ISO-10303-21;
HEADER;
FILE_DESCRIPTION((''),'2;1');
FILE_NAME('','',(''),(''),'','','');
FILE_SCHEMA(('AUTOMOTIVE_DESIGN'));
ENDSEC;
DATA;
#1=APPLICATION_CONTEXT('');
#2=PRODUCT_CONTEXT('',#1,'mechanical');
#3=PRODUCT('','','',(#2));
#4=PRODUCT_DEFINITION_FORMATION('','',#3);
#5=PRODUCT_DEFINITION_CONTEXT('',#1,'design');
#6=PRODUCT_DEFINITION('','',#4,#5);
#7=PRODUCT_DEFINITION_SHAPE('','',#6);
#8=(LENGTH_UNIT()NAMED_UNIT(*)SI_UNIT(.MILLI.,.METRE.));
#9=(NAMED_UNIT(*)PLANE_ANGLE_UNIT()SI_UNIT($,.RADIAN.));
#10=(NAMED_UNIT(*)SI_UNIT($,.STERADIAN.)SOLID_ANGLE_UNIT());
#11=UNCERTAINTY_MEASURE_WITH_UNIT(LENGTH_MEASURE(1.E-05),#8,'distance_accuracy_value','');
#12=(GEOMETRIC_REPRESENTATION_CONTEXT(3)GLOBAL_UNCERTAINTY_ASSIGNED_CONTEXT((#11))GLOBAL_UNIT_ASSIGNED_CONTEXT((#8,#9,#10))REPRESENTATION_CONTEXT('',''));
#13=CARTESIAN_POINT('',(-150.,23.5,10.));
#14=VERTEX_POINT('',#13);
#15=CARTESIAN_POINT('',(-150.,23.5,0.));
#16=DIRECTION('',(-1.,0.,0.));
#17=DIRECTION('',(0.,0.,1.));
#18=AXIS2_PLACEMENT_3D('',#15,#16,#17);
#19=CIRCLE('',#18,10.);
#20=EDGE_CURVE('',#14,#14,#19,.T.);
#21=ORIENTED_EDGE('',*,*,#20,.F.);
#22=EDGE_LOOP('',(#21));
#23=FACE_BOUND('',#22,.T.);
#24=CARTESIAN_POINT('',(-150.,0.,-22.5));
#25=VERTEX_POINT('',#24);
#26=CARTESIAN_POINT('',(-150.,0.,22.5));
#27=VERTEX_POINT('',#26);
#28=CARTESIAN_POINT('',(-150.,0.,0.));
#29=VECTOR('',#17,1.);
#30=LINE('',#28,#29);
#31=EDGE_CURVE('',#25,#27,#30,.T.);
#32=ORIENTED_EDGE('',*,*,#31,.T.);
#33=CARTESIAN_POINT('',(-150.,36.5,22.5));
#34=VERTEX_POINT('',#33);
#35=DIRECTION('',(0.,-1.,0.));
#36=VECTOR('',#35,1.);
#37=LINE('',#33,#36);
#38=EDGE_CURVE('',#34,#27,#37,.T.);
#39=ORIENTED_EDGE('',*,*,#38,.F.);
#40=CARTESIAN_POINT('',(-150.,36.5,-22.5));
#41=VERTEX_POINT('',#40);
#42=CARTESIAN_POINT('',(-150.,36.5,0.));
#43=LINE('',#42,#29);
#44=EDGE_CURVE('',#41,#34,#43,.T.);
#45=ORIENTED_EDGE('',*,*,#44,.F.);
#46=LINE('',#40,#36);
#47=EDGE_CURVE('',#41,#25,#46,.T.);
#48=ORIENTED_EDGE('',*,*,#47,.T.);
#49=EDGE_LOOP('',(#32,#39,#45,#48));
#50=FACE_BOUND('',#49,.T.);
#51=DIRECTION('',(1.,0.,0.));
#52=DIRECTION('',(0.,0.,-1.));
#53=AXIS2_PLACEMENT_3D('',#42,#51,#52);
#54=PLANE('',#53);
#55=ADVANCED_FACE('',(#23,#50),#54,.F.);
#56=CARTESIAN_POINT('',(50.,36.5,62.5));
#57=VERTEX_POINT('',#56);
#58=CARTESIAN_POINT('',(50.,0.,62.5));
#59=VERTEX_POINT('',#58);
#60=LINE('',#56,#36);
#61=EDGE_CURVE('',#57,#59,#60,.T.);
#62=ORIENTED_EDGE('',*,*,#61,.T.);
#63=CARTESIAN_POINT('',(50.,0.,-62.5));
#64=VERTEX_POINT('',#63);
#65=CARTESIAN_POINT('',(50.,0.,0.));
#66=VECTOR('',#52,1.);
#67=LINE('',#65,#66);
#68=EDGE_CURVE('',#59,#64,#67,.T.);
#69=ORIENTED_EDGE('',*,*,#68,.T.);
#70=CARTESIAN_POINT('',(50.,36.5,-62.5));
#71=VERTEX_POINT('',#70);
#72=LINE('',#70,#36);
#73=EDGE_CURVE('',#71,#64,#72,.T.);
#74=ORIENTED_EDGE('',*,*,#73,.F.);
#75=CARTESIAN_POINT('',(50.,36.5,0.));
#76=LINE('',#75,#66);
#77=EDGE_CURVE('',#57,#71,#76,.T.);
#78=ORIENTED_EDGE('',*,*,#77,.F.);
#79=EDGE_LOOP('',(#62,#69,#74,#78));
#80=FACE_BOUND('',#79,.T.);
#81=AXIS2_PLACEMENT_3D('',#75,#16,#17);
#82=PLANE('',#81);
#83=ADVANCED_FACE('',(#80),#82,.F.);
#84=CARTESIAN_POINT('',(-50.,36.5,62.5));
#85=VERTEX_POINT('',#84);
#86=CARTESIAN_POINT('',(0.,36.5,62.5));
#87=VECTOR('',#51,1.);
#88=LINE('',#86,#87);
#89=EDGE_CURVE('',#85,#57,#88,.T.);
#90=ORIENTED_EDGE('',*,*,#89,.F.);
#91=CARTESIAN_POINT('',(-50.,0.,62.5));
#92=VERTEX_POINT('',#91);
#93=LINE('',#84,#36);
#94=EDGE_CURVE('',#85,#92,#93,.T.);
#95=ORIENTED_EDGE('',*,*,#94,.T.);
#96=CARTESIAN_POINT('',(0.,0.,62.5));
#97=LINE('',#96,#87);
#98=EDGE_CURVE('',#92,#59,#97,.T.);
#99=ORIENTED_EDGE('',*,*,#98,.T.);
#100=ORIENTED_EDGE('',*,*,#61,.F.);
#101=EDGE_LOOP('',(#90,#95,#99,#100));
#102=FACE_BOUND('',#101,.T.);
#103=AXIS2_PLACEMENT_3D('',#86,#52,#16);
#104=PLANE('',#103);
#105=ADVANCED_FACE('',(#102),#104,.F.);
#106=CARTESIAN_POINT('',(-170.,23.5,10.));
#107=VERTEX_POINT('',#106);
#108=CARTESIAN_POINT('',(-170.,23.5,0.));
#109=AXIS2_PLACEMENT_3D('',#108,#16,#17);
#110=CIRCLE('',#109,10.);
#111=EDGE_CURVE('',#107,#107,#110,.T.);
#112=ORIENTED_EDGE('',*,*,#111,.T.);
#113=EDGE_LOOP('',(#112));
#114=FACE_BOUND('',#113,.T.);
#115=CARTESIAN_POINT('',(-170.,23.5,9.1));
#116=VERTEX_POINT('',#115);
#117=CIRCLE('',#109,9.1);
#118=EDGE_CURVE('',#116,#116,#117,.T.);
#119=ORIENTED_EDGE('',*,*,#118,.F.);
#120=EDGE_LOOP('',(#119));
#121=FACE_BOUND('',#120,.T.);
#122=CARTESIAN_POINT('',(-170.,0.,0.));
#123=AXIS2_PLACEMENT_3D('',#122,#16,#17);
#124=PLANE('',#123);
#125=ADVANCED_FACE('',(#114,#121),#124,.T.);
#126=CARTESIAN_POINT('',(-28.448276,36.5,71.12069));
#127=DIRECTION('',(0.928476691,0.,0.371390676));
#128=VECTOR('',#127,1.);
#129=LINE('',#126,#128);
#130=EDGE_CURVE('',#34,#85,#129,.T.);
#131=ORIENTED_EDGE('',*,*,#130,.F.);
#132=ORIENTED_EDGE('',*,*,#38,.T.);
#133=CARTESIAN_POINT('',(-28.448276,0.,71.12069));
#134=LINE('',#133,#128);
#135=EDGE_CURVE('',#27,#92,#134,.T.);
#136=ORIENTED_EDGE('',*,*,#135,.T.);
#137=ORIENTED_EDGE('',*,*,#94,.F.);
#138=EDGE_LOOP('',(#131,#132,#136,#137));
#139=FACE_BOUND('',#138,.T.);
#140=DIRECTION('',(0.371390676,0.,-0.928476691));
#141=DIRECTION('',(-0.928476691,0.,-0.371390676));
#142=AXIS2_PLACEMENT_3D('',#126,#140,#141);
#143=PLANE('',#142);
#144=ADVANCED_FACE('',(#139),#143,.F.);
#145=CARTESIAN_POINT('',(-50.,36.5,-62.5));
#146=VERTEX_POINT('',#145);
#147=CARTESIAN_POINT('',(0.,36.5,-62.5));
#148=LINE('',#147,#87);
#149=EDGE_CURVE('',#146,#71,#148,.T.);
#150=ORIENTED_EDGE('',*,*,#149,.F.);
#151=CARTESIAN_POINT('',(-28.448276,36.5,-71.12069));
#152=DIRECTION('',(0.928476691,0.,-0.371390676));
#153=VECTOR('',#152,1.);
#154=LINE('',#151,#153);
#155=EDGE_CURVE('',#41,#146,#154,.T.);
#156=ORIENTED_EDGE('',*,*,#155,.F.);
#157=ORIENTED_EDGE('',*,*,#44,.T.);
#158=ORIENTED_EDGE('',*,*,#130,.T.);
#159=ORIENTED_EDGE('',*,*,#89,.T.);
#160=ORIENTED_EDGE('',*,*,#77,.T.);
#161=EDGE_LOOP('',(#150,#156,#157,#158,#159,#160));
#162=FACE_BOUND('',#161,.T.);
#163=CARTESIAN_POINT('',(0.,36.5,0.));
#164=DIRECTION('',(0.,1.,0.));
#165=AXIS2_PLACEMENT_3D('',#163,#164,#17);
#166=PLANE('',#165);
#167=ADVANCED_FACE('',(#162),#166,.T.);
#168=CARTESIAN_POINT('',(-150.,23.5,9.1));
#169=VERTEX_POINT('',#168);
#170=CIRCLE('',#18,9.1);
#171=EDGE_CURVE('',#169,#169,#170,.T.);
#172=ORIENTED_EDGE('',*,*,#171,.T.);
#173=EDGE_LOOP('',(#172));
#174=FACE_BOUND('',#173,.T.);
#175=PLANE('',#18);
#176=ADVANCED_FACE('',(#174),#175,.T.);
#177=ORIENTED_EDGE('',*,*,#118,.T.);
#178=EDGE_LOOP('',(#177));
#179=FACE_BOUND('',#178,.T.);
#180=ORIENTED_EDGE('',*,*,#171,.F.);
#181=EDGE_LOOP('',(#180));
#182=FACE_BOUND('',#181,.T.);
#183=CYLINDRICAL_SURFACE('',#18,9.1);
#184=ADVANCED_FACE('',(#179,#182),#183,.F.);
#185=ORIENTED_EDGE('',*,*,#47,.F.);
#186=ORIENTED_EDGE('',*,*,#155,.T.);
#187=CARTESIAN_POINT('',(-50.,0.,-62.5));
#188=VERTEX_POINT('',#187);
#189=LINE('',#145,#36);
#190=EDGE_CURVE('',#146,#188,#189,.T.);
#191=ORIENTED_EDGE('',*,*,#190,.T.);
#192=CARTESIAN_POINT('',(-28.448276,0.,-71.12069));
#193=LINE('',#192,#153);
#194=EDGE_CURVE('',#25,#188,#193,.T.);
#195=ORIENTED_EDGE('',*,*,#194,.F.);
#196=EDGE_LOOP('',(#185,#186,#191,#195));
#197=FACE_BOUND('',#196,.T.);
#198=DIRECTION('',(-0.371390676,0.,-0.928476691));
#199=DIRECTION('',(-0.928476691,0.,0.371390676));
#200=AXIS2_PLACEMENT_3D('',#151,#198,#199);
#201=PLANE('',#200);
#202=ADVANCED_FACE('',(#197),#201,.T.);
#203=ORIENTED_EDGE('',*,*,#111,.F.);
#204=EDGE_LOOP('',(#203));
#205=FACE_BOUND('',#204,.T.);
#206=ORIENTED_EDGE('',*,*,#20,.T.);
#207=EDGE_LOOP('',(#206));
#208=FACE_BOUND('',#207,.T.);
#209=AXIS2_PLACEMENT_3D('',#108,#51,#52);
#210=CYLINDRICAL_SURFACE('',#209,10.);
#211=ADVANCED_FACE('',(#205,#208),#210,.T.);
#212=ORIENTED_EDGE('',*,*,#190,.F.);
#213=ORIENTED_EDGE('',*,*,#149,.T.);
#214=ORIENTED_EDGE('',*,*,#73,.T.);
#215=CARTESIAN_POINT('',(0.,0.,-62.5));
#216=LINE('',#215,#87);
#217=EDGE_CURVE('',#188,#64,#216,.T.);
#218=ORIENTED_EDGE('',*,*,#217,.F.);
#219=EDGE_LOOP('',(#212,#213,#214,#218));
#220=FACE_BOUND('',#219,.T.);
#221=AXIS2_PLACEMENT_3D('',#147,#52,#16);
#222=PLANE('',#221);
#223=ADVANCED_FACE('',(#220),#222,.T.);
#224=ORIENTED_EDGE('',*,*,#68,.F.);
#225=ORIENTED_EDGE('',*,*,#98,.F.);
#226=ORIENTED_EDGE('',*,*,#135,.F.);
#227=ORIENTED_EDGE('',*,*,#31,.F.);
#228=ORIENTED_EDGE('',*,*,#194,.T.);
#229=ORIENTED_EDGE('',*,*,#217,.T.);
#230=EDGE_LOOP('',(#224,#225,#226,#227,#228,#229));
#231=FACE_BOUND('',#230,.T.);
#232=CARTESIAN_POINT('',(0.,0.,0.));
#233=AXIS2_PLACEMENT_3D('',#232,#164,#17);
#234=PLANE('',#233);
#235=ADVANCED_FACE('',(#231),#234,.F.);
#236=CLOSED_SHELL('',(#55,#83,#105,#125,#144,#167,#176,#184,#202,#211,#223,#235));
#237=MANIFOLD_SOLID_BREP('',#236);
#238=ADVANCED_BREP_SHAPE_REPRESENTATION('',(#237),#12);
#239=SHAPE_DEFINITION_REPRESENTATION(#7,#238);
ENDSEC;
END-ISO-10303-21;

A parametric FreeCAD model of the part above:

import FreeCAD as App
import Part
import Sketcher

V = App.Vector

doc = App.newDocument("Part")
params = doc.addObject("Spreadsheet::Sheet", "Params")
for row, (alias, value) in enumerate([
    ("sketch1_width", "100 mm"),
    ("sketch1_height", "45 mm"),
    ("sketch1_height2", "125 mm"),
    ("pad1_length", "36.5 mm"),
    ("sketch2_diameter", "20 mm"),
    ("pad2_length", "20 mm"),
    ("sketch3_diameter", "18.2 mm"),
    ("pocket1_length", "20 mm"),
], start=1):
    params.set(f"A{row}", alias)
    params.set(f"B{row}", "=" + value)
    params.setAlias(f"B{row}", alias)

body = doc.addObject("PartDesign::Body", "Body")

sketch1 = doc.addObject("Sketcher::SketchObject", "Sketch")
body.addObject(sketch1)
sketch1.AttachmentSupport = (doc.XZ_Plane, [""])
sketch1.MapMode = "FlatFace"
sketch1.addGeometry(Part.LineSegment(V(-150, -22.5, 0), V(-150, 22.5, 0)), False)
sketch1.addGeometry(Part.LineSegment(V(-150, 22.5, 0), V(-50, 62.5, 0)), False)
sketch1.addGeometry(Part.LineSegment(V(-50, 62.5, 0), V(50, 62.5, 0)), False)
sketch1.addGeometry(Part.LineSegment(V(50, 62.5, 0), V(50, -62.5, 0)), False)
sketch1.addGeometry(Part.LineSegment(V(50, -62.5, 0), V(-50, -62.5, 0)), False)
sketch1.addGeometry(Part.LineSegment(V(-50, -62.5, 0), V(-150, -22.5, 0)), False)
sketch1.addConstraint(Sketcher.Constraint("Coincident", 0, 2, 1, 1))
sketch1.addConstraint(Sketcher.Constraint("Coincident", 1, 2, 2, 1))
sketch1.addConstraint(Sketcher.Constraint("Coincident", 2, 2, 3, 1))
sketch1.addConstraint(Sketcher.Constraint("Coincident", 3, 2, 4, 1))
sketch1.addConstraint(Sketcher.Constraint("Coincident", 4, 2, 5, 1))
sketch1.addConstraint(Sketcher.Constraint("Coincident", 5, 2, 0, 1))
sketch1.addConstraint(Sketcher.Constraint("Vertical", 0))
sketch1.addConstraint(Sketcher.Constraint("Horizontal", 2))
sketch1.addConstraint(Sketcher.Constraint("Vertical", 3))
sketch1.addConstraint(Sketcher.Constraint("Horizontal", 4))
sketch1.addConstraint(Sketcher.Constraint("Symmetric", 1, 2, 3, 2, -1, 1))
sketch1.addConstraint(Sketcher.Constraint("Vertical", 1, 2, 4, 2))
sketch1.addConstraint(Sketcher.Constraint("Equal", 1, 5))
sketch1.addConstraint(Sketcher.Constraint("DistanceX", 2, 1, 2, 2, 100.0))
sketch1.addConstraint(Sketcher.Constraint("DistanceY", 0, 1, 0, 2, 45.0))
sketch1.addConstraint(Sketcher.Constraint("DistanceY", 3, 2, 3, 1, 125.0))
sketch1.addConstraint(Sketcher.Constraint("DistanceX", 0, 2, -1, 1, 150.0))
sketch1.setExpression("Constraints[13]", "Params.sketch1_width")
sketch1.setExpression("Constraints[14]", "Params.sketch1_height")
sketch1.setExpression("Constraints[15]", "Params.sketch1_height2")
pad1 = doc.addObject("PartDesign::Pad", "Pad")
body.addObject(pad1)
pad1.Profile = sketch1
pad1.setExpression("Length", "Params.pad1_length")
pad1.Reversed = True

sketch2 = doc.addObject("Sketcher::SketchObject", "Sketch001")
body.addObject(sketch2)
sketch2.AttachmentSupport = (doc.YZ_Plane, [""])
sketch2.MapMode = "FlatFace"
sketch2.AttachmentOffset = App.Placement(V(0, 0, -150), App.Rotation())
sketch2.addGeometry(Part.Circle(V(23.5, 0, 0), V(0, 0, 1), 10), False)
sketch2.addConstraint(Sketcher.Constraint("PointOnObject", 0, 3, -1))
sketch2.addConstraint(Sketcher.Constraint("Diameter", 0, 20.0))
sketch2.addConstraint(Sketcher.Constraint("DistanceX", -1, 1, 0, 3, 23.5))
sketch2.setExpression("Constraints[1]", "Params.sketch2_diameter")
pad2 = doc.addObject("PartDesign::Pad", "Pad001")
body.addObject(pad2)
pad2.Profile = sketch2
pad2.setExpression("Length", "Params.pad2_length")
pad2.Reversed = True

sketch3 = doc.addObject("Sketcher::SketchObject", "Sketch002")
body.addObject(sketch3)
sketch3.AttachmentSupport = (doc.YZ_Plane, [""])
sketch3.MapMode = "FlatFace"
sketch3.AttachmentOffset = App.Placement(V(0, 0, -170), App.Rotation())
sketch3.addGeometry(Part.Circle(V(23.5, 0, 0), V(0, 0, 1), 9.1), False)
sketch3.addConstraint(Sketcher.Constraint("PointOnObject", 0, 3, -1))
sketch3.addConstraint(Sketcher.Constraint("Diameter", 0, 18.2))
sketch3.addConstraint(Sketcher.Constraint("DistanceX", -1, 1, 0, 3, 23.5))
sketch3.setExpression("Constraints[1]", "Params.sketch3_diameter")
pocket1 = doc.addObject("PartDesign::Pocket", "Pocket")
body.addObject(pocket1)
pocket1.Profile = sketch3
pocket1.setExpression("Length", "Params.pocket1_length")
pocket1.Reversed = True

doc.recompute()
